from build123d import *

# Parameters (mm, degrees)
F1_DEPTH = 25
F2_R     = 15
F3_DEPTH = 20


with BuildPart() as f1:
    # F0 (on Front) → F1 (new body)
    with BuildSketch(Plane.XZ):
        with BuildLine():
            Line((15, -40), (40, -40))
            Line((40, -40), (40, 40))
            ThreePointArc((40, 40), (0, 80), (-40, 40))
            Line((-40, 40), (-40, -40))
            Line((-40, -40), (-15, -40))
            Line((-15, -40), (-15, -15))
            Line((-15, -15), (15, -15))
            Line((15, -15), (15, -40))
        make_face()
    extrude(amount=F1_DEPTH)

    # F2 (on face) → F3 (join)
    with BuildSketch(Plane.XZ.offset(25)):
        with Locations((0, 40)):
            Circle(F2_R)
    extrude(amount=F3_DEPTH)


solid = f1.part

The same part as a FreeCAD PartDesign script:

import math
import FreeCAD as App
import Part
import Sketcher

V = App.Vector

doc = App.newDocument("Part")
body = doc.addObject("PartDesign::Body", "Body")

sketch1 = body.newObject("Sketcher::SketchObject", "Sketch")
sketch1.AttachmentSupport = (doc.getObject("XZ_Plane"), [""])
sketch1.MapMode = "FlatFace"
sketch1.addGeometry(Part.LineSegment(V(15, -40, 0), V(40, -40, 0)), False)
sketch1.addGeometry(Part.LineSegment(V(40, -40, 0), V(40, 40, 0)), False)
sketch1.addGeometry(Part.ArcOfCircle(Part.Circle(V(0, 40, 0), V(0, 0, 1), 40), math.radians(0), math.radians(180)), False)
sketch1.addGeometry(Part.LineSegment(V(-40, 40, 0), V(-40, -40, 0)), False)
sketch1.addGeometry(Part.LineSegment(V(-40, -40, 0), V(-15, -40, 0)), False)
sketch1.addGeometry(Part.LineSegment(V(-15, -40, 0), V(-15, -15, 0)), False)
sketch1.addGeometry(Part.LineSegment(V(-15, -15, 0), V(15, -15, 0)), False)
sketch1.addGeometry(Part.LineSegment(V(15, -15, 0), V(15, -40, 0)), False)
sketch1.addConstraint(Sketcher.Constraint("Coincident", 0, 2, 1, 1))
sketch1.addConstraint(Sketcher.Constraint("Tangent", 1, 2, 2, 1))
sketch1.addConstraint(Sketcher.Constraint("Tangent", 2, 2, 3, 1))
sketch1.addConstraint(Sketcher.Constraint("Coincident", 3, 2, 4, 1))
sketch1.addConstraint(Sketcher.Constraint("Coincident", 4, 2, 5, 1))
sketch1.addConstraint(Sketcher.Constraint("Coincident", 5, 2, 6, 1))
sketch1.addConstraint(Sketcher.Constraint("Coincident", 6, 2, 7, 1))
sketch1.addConstraint(Sketcher.Constraint("Coincident", 7, 2, 0, 1))
sketch1.addConstraint(Sketcher.Constraint("Horizontal", 0))
sketch1.addConstraint(Sketcher.Constraint("Vertical", 1))
sketch1.addConstraint(Sketcher.Constraint("Vertical", 3))
sketch1.addConstraint(Sketcher.Constraint("Horizontal", 4))
sketch1.addConstraint(Sketcher.Constraint("Vertical", 5))
sketch1.addConstraint(Sketcher.Constraint("Horizontal", 6))
sketch1.addConstraint(Sketcher.Constraint("Vertical", 7))
sketch1.addConstraint(Sketcher.Constraint("Symmetric", 0, 2, 2, 2, -1, 1))
sketch1.addConstraint(Sketcher.Constraint("Symmetric", 4, 2, 7, 2, -2))
sketch1.addConstraint(Sketcher.Constraint("Equal", 4, 5))
sketch1.addConstraint(Sketcher.Constraint("Radius", 2, 40.0))
sketch1.addConstraint(Sketcher.Constraint("DistanceX", 0, 1, 0, 2, 25.0))
sketch1.addConstraint(Sketcher.Constraint("DistanceY", 1, 1, 1, 2, 80.0))
pad1 = body.newObject("PartDesign::Pad", "Pad")
pad1.Profile = sketch1
pad1.Length = 25

sketch2 = body.newObject("Sketcher::SketchObject", "Sketch001")
sketch2.AttachmentSupport = (doc.getObject("XZ_Plane"), [""])
sketch2.MapMode = "FlatFace"
sketch2.AttachmentOffset = App.Placement(V(0, 0, 25), App.Rotation())
sketch2.addGeometry(Part.Circle(V(0, 40, 0), V(0, 0, 1), 15), False)
sketch2.addConstraint(Sketcher.Constraint("PointOnObject", 0, 3, -2))
sketch2.addConstraint(Sketcher.Constraint("Diameter", 0, 30.0))
sketch2.addConstraint(Sketcher.Constraint("DistanceY", -1, 1, 0, 3, 40.0))
pad2 = body.newObject("PartDesign::Pad", "Pad001")
pad2.Profile = sketch2
pad2.Length = 20

doc.recompute()
